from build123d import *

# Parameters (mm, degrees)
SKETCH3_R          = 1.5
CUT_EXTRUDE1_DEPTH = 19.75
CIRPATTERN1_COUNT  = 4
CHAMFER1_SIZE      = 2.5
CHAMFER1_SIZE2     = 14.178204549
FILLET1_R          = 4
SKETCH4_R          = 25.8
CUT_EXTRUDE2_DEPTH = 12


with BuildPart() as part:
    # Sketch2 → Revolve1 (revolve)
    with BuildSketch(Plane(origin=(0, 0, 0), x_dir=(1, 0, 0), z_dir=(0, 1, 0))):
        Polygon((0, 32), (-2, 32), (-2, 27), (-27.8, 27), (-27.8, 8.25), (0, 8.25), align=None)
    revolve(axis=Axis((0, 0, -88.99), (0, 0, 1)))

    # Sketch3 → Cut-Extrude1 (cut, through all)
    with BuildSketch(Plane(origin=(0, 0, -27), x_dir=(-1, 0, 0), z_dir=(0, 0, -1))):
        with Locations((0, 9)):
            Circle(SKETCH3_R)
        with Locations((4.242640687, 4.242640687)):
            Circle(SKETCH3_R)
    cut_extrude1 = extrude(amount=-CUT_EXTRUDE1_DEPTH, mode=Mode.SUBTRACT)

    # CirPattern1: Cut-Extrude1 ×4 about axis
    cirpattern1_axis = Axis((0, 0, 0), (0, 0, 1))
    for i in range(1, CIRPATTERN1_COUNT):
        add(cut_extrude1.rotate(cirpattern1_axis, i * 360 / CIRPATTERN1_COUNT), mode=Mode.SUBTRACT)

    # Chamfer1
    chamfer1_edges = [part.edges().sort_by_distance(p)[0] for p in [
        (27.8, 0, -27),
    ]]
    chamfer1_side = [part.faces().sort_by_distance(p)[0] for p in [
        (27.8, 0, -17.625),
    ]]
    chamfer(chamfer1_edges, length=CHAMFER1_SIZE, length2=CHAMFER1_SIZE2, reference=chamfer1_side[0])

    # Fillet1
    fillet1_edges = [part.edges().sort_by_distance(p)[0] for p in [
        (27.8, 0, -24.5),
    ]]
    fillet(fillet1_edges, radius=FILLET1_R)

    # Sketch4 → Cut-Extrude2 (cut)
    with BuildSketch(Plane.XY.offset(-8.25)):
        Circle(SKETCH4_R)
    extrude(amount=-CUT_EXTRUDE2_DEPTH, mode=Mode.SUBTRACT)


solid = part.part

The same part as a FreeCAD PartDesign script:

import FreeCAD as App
import Part
import Sketcher

V = App.Vector


def edges_at(feature, points):
    """Names of the edges that pass closest to the given points."""
    edges = feature.Shape.Edges
    near = lambda p: min(range(len(edges)), key=lambda i: edges[i].distToShape(Part.Vertex(*p))[0])
    return sorted({f"Edge{near(p) + 1}" for p in points})

doc = App.newDocument("Part")
body = doc.addObject("PartDesign::Body", "Body")

# Sketch on XZ plane
sketch1 = doc.addObject("Sketcher::SketchObject", "Sketch")
body.addObject(sketch1)
sketch1.AttachmentSupport = (doc.XZ_Plane, [""])
sketch1.MapMode = "FlatFace"
sketch1.addGeometry([
    Part.LineSegment(V(0, -32, 0), V(-2, -32, 0)),  # 0
    Part.LineSegment(V(-2, -32, 0), V(-2, -27, 0)),  # 1
    Part.LineSegment(V(-2, -27, 0), V(-27.8, -27, 0)),  # 2
    Part.LineSegment(V(-27.8, -27, 0), V(-27.8, -8.2, 0)),  # 3
    Part.LineSegment(V(-27.8, -8.2, 0), V(0, -8.2, 0)),  # 4
    Part.LineSegment(V(0, -8.2, 0), V(0, -32, 0)),  # 5
], False)
sketch1.addConstraint([
    Sketcher.Constraint("Coincident", 0, 2, 1, 1),
    Sketcher.Constraint("Coincident", 1, 2, 2, 1),
    Sketcher.Constraint("Coincident", 2, 2, 3, 1),
    Sketcher.Constraint("Coincident", 3, 2, 4, 1),
    Sketcher.Constraint("Coincident", 4, 2, 5, 1),
    Sketcher.Constraint("Coincident", 5, 2, 0, 1),
    Sketcher.Constraint("Horizontal", 0),
    Sketcher.Constraint("Vertical", 1),
    Sketcher.Constraint("Horizontal", 2),
    Sketcher.Constraint("Vertical", 3),
    Sketcher.Constraint("Horizontal", 4),
    Sketcher.Constraint("Vertical", 5),
    Sketcher.Constraint("PointOnObject", 4, 2, -2),
    Sketcher.Constraint("DistanceX", 0, 2, 0, 1, 2.0),
    Sketcher.Constraint("DistanceY", 1, 1, 1, 2, 5.0),
    Sketcher.Constraint("DistanceX", 2, 2, 2, 1, 25.8),
    Sketcher.Constraint("DistanceY", 0, 2, -1, 1, 32.0),
    Sketcher.Constraint("DistanceY", 3, 1, 3, 2, 18.75),
])
revolution = doc.addObject("PartDesign::Revolution", "Revolution")
body.addObject(revolution)
revolution.Profile = sketch1
revolution.ReferenceAxis = (sketch1, ["V_Axis"])
revolution.Angle = 360

# Sketch on XY plane
sketch2 = doc.addObject("Sketcher::SketchObject", "Sketch001")
body.addObject(sketch2)
sketch2.AttachmentSupport = (doc.XY_Plane, [""])
sketch2.MapMode = "FlatFace"
sketch2.AttachmentOffset = App.Placement(V(0, 0, -27), App.Rotation())
sketch2.addGeometry([
    Part.Circle(V(0, 9, 0), V(0, 0, 1), 1.5),
    Part.Circle(V(-4.2, 4.2, 0), V(0, 0, 1), 1.5),
], False)
sketch2.addConstraint([
    Sketcher.Constraint("Equal", 0, 1),
    Sketcher.Constraint("PointOnObject", 0, 3, -2),
    Sketcher.Constraint("Diameter", 0, 3.0),
    Sketcher.Constraint("DistanceY", -1, 1, 0, 3, 9.0),
    Sketcher.Constraint("DistanceX", 1, 3, -1, 1, 4.242641),
    Sketcher.Constraint("DistanceY", -1, 1, 1, 3, 4.242641),
])
pocket1 = doc.addObject("PartDesign::Pocket", "Pocket")
body.addObject(pocket1)
pocket1.Profile = sketch2
pocket1.Type = "ThroughAll"
pocket1.Reversed = True
doc.recompute()

polarpattern = doc.addObject("PartDesign::PolarPattern", "PolarPattern")
body.addObject(polarpattern)
polarpattern.Originals = [pocket1]
polarpattern.Axis = (doc.Z_Axis, [""])
polarpattern.Angle = 360
polarpattern.Occurrences = 4
body.Tip = polarpattern
doc.recompute()

chamfer = doc.addObject("PartDesign::Chamfer", "Chamfer")
body.addObject(chamfer)
chamfer.Base = (polarpattern, edges_at(polarpattern, [(27.8, 0, -27)]))
chamfer.ChamferType = "Two distances"
chamfer.Size = 2.5
chamfer.Size2 = 14.178205
chamfer.FlipDirection = True
doc.recompute()

fillet = doc.addObject("PartDesign::Fillet", "Fillet")
body.addObject(fillet)
fillet.Base = (chamfer, edges_at(chamfer, [(27.8, 0, -24.5)]))
fillet.Radius = 4

# Sketch on XY plane
sketch3 = doc.addObject("Sketcher::SketchObject", "Sketch002")
body.addObject(sketch3)
sketch3.AttachmentSupport = (doc.XY_Plane, [""])
sketch3.MapMode = "FlatFace"
sketch3.AttachmentOffset = App.Placement(V(0, 0, -8.25), App.Rotation())
sketch3.addGeometry(Part.Circle(V(0, 0, 0), V(0, 0, 1), 26), False)
sketch3.addConstraint([
    Sketcher.Constraint("Coincident", 0, 3, -1, 1),
    Sketcher.Constraint("Diameter", 0, 51.6),
])
pocket2 = doc.addObject("PartDesign::Pocket", "Pocket001")
body.addObject(pocket2)
pocket2.Profile = sketch3
pocket2.Length = 12

doc.recompute()
